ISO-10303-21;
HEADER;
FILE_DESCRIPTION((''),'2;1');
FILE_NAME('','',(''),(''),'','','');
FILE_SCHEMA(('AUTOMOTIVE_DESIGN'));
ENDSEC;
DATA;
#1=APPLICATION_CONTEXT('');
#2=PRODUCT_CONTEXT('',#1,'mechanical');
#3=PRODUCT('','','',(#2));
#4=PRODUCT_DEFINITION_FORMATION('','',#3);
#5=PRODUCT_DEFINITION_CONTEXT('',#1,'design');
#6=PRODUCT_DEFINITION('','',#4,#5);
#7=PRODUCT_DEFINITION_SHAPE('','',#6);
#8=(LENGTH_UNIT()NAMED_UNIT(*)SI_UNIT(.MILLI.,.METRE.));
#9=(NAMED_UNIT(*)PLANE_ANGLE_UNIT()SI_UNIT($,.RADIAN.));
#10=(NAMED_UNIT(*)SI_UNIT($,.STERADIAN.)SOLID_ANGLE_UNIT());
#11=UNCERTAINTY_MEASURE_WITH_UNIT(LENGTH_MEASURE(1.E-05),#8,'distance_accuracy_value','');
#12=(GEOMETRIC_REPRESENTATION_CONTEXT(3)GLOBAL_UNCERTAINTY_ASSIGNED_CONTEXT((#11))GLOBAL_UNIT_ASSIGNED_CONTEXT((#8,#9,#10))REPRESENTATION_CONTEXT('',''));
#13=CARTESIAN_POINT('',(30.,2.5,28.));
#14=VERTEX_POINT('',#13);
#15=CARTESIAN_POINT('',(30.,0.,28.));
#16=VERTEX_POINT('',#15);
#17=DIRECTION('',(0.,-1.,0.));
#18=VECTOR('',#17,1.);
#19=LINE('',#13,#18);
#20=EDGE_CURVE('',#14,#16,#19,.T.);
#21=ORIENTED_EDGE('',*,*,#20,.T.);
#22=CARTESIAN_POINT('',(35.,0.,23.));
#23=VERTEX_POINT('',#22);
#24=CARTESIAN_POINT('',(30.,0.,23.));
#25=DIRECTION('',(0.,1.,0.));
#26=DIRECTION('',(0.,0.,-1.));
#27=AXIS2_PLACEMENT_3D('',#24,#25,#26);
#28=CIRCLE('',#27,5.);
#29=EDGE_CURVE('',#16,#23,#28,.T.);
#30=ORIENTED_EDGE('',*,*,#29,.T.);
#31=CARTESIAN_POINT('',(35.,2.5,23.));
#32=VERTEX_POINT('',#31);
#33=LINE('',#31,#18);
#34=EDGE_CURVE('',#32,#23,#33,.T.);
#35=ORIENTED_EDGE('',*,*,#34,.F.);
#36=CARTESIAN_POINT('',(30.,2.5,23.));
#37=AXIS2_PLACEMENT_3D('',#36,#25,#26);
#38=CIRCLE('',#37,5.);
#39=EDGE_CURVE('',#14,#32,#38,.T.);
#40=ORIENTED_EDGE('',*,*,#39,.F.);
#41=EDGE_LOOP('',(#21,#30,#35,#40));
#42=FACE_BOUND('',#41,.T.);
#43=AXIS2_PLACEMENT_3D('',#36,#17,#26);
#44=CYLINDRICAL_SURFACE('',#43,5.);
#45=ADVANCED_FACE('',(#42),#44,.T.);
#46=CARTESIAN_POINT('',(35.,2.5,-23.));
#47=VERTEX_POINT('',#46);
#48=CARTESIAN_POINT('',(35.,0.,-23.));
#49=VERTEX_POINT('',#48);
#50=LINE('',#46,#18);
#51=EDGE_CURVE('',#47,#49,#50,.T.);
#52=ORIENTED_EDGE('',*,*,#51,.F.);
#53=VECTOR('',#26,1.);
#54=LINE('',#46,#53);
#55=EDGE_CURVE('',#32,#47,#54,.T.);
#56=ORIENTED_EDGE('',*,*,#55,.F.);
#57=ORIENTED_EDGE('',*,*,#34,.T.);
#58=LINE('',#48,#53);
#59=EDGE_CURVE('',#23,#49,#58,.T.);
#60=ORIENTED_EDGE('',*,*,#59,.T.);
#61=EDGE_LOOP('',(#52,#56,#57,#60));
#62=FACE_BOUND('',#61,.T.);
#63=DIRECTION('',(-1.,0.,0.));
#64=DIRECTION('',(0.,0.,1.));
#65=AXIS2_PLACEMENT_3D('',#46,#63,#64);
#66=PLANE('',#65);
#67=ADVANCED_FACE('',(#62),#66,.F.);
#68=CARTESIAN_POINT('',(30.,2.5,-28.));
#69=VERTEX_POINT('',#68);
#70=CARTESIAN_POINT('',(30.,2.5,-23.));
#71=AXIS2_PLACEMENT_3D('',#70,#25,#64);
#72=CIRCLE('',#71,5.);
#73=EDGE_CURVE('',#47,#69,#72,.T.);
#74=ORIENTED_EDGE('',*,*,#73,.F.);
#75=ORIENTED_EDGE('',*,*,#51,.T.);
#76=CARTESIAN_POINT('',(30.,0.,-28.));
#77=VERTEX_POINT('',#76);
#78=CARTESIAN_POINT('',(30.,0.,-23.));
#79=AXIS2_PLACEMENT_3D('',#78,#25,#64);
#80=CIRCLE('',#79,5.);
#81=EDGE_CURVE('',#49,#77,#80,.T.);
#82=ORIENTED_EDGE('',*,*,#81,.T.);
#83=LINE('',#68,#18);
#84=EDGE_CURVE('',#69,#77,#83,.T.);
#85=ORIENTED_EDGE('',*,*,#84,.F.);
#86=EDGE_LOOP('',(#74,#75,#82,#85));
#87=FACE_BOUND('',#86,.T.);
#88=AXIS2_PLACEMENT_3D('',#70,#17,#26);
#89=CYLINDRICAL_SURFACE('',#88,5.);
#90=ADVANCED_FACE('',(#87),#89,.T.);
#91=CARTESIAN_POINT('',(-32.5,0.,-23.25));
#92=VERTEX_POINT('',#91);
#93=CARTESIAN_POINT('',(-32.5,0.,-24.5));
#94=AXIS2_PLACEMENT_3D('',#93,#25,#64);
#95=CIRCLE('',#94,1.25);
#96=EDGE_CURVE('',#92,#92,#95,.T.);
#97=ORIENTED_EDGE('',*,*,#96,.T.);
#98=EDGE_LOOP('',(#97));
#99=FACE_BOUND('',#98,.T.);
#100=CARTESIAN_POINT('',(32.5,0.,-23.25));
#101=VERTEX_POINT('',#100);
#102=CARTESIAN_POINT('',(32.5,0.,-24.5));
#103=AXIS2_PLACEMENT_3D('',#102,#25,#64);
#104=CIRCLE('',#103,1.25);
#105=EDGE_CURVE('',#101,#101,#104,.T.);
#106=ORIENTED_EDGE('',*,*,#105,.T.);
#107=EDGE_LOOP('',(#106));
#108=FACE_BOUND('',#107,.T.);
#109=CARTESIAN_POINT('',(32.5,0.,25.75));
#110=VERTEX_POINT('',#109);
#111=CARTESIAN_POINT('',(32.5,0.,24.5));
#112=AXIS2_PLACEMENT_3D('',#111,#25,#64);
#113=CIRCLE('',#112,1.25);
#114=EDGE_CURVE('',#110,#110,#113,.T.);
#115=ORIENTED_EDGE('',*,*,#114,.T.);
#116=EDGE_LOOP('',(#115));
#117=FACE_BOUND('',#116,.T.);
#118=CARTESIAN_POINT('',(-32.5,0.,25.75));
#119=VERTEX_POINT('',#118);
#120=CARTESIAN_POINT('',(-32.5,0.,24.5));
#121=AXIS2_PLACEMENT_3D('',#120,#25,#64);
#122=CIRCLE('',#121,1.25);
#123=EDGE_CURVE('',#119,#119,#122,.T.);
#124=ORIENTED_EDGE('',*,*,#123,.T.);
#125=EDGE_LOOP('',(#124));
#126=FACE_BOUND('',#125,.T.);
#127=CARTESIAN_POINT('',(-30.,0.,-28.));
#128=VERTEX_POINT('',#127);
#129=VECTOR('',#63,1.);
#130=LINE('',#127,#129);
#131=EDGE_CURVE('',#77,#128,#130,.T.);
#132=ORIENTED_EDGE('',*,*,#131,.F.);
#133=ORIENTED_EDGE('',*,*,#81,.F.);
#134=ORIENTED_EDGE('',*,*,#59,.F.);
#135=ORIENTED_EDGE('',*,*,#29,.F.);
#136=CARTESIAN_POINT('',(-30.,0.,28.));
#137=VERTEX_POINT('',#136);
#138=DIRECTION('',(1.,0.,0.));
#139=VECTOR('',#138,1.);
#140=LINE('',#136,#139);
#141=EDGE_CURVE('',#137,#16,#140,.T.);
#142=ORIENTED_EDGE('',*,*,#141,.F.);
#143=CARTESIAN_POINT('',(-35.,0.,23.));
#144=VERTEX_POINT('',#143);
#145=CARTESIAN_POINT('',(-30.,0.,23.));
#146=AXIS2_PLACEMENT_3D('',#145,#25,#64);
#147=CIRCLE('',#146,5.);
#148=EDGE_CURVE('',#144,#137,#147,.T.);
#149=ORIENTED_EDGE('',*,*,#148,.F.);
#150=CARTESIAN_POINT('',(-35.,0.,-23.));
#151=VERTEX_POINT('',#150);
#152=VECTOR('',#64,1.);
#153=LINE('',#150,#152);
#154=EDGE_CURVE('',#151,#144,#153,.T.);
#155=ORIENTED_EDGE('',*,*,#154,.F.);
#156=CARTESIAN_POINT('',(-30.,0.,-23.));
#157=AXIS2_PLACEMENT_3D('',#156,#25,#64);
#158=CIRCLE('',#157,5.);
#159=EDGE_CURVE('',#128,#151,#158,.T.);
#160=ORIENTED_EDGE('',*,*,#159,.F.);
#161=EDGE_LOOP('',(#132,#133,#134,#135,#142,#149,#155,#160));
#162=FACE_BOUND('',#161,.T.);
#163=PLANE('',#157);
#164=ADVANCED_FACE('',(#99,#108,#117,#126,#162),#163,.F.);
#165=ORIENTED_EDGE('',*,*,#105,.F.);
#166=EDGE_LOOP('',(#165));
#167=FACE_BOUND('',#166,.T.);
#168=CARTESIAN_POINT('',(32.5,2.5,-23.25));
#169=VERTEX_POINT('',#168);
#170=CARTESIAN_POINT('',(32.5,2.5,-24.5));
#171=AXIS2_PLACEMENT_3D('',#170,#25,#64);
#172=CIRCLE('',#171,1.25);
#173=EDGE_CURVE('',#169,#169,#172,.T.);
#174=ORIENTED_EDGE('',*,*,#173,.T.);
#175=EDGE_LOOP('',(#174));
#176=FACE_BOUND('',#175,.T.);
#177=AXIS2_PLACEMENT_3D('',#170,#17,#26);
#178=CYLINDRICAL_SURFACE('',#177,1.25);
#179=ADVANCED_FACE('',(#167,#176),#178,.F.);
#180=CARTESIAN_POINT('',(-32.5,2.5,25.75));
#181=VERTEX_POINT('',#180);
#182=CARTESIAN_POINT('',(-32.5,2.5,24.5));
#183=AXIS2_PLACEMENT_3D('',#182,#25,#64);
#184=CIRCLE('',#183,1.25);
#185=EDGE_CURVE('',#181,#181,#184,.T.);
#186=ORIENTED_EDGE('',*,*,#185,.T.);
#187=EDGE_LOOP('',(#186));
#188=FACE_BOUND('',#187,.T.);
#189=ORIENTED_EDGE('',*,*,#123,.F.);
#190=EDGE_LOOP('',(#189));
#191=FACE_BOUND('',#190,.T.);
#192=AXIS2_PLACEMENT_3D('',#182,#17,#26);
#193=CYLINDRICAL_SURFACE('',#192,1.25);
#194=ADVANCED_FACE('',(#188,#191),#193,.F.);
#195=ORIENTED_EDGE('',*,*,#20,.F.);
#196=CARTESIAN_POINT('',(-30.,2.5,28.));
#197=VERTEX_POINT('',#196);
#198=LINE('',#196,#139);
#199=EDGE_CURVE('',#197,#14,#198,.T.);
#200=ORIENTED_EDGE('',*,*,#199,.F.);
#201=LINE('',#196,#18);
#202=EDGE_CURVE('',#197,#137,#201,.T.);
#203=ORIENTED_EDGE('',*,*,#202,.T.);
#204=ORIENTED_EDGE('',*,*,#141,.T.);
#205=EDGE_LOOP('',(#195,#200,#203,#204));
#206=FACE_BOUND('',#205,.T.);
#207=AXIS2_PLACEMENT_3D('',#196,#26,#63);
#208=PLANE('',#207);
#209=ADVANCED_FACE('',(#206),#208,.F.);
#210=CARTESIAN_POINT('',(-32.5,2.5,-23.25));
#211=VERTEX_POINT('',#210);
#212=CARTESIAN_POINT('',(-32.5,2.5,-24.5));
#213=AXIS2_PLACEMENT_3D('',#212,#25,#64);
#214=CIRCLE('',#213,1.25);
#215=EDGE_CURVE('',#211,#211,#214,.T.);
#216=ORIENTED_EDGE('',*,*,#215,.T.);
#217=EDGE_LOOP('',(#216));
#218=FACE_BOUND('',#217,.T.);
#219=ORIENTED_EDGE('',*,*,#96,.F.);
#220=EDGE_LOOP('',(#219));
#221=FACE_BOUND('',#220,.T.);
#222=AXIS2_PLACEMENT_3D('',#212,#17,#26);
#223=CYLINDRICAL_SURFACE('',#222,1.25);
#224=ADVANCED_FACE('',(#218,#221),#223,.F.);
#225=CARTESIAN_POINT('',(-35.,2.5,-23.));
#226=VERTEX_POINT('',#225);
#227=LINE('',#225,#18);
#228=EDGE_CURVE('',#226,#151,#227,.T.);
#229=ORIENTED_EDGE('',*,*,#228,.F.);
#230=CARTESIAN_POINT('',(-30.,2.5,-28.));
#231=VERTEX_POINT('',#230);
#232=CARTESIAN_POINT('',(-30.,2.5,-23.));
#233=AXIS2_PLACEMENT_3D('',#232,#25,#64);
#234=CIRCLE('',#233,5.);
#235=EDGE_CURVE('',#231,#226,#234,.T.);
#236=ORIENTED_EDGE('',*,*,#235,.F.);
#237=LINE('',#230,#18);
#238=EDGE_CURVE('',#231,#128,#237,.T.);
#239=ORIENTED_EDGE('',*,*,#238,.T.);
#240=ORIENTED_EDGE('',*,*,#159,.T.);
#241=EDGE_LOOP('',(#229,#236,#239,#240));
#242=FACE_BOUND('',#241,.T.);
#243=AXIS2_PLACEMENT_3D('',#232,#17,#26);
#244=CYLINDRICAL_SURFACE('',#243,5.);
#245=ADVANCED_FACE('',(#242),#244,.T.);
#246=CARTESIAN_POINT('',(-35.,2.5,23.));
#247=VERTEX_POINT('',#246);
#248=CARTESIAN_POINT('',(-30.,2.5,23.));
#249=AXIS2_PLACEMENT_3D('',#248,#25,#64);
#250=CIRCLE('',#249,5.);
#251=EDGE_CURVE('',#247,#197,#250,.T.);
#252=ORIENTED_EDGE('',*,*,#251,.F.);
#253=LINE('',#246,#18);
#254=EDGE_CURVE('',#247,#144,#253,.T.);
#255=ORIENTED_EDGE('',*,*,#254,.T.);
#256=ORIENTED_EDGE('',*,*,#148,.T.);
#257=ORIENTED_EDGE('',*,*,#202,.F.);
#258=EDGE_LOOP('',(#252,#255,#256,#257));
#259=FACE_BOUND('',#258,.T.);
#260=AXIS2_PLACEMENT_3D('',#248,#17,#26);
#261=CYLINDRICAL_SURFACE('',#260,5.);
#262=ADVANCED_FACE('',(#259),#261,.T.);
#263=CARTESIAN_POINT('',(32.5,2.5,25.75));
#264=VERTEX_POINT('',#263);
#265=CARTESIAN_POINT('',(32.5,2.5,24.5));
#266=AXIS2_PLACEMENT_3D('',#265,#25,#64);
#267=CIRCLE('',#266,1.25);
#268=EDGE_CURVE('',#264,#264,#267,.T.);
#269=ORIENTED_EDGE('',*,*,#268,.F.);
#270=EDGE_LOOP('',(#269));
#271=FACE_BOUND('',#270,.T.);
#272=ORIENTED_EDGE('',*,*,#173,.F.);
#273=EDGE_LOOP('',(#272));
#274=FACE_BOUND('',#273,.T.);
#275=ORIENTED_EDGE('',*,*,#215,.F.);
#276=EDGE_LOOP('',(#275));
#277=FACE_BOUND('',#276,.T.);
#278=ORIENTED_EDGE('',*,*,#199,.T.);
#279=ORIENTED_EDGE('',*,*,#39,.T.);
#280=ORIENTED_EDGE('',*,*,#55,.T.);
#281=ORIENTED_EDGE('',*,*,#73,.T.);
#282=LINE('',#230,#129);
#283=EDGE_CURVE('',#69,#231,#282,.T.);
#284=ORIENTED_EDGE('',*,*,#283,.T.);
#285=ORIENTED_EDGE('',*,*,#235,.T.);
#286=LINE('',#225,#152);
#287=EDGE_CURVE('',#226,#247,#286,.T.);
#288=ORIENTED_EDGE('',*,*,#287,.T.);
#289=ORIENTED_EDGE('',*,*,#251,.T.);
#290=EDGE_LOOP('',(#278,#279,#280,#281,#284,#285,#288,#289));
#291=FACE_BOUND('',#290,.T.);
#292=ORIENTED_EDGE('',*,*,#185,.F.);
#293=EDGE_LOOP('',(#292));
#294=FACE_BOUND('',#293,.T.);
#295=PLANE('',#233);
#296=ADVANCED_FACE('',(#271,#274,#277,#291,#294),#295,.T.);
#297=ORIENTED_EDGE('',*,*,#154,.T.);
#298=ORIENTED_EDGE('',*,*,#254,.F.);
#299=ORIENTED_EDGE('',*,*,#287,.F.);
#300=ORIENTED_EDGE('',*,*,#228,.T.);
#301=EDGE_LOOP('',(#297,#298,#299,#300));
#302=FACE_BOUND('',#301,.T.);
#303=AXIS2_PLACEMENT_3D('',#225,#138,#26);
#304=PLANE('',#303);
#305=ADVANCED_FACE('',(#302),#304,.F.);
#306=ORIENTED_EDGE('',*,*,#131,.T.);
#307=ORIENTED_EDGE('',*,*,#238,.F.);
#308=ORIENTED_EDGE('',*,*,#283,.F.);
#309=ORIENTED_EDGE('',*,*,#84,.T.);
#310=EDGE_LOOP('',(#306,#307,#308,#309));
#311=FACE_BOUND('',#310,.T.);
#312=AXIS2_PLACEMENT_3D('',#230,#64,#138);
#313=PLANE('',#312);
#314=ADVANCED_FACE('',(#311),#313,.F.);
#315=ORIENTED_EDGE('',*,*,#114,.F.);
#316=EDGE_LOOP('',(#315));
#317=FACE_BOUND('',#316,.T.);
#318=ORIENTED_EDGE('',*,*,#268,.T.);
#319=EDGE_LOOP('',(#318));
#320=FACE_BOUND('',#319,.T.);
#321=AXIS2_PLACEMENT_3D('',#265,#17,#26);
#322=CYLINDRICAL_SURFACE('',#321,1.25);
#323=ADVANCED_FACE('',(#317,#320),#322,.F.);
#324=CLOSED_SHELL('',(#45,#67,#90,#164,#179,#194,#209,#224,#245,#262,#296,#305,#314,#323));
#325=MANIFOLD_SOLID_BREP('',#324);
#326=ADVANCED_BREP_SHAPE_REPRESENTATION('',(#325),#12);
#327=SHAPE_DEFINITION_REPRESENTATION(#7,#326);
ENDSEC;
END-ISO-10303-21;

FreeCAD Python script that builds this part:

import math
import FreeCAD as App
import Part
import Sketcher
from FreeCAD import Vector
Q = App.Units.Quantity

doc = App.newDocument("Part")
body = doc.addObject("PartDesign::Body", "Body")

# Sketch on XZ plane
sketch1 = body.newObject("Sketcher::SketchObject", "Sketch")
sketch1.AttachmentSupport = (doc.getObject("XZ_Plane"), [""])
sketch1.MapMode = "FlatFace"
sketch1.addGeometry(Part.LineSegment(Vector(30, -28, 0), Vector(-30, -28, 0)), False)
sketch1.addGeometry(Part.ArcOfCircle(Part.Circle(Vector(-30, -23, 0), Vector(0, 0, 1), 5), math.radians(180), math.radians(270)), False)
sketch1.addGeometry(Part.LineSegment(Vector(-35, -23, 0), Vector(-35, 23, 0)), False)
sketch1.addGeometry(Part.ArcOfCircle(Part.Circle(Vector(-30, 23, 0), Vector(0, 0, 1), 5), math.radians(90), math.radians(180)), False)
sketch1.addGeometry(Part.LineSegment(Vector(-30, 28, 0), Vector(30, 28, 0)), False)
sketch1.addGeometry(Part.ArcOfCircle(Part.Circle(Vector(30, 23, 0), Vector(0, 0, 1), 5), math.radians(0), math.radians(90)), False)
sketch1.addGeometry(Part.LineSegment(Vector(35, 23, 0), Vector(35, -23, 0)), False)
sketch1.addGeometry(Part.ArcOfCircle(Part.Circle(Vector(30, -23, 0), Vector(0, 0, 1), 5), math.radians(-90), math.radians(0)), False)
sketch1.addGeometry(Part.Circle(Vector(32.5, 24.5, 0), Vector(0, 0, 1), 1.25), False)
sketch1.addGeometry(Part.Circle(Vector(-32.5, 24.5, 0), Vector(0, 0, 1), 1.25), False)
sketch1.addGeometry(Part.Circle(Vector(32.5, -24.5, 0), Vector(0, 0, 1), 1.25), False)
sketch1.addGeometry(Part.Circle(Vector(-32.5, -24.5, 0), Vector(0, 0, 1), 1.25), False)
sketch1.addConstraint(Sketcher.Constraint("Tangent", 0, 2, 1, 2))
sketch1.addConstraint(Sketcher.Constraint("Tangent", 1, 1, 2, 1))
sketch1.addConstraint(Sketcher.Constraint("Tangent", 2, 2, 3, 2))
sketch1.addConstraint(Sketcher.Constraint("Tangent", 3, 1, 4, 1))
sketch1.addConstraint(Sketcher.Constraint("Tangent", 4, 2, 5, 2))
sketch1.addConstraint(Sketcher.Constraint("Tangent", 5, 1, 6, 1))
sketch1.addConstraint(Sketcher.Constraint("Tangent", 6, 2, 7, 2))
sketch1.addConstraint(Sketcher.Constraint("Tangent", 7, 1, 0, 1))
sketch1.addConstraint(Sketcher.Constraint("Horizontal", 0))
sketch1.addConstraint(Sketcher.Constraint("Vertical", 2))
sketch1.addConstraint(Sketcher.Constraint("Horizontal", 4))
sketch1.addConstraint(Sketcher.Constraint("Vertical", 6))
sketch1.addConstraint(Sketcher.Constraint("Equal", 1, 3))
sketch1.addConstraint(Sketcher.Constraint("Equal", 3, 5))
sketch1.addConstraint(Sketcher.Constraint("Equal", 5, 7))
sketch1.addConstraint(Sketcher.Constraint("Equal", 8, 9))
sketch1.addConstraint(Sketcher.Constraint("Equal", 9, 10))
sketch1.addConstraint(Sketcher.Constraint("Equal", 10, 11))
sketch1.addConstraint(Sketcher.Constraint("Symmetric", 1, 3, 5, 3, -1, 1))
sketch1.addConstraint(Sketcher.Constraint("Symmetric", 9, 3, 10, 3, -1, 1))
sketch1.addConstraint(Sketcher.Constraint("Symmetric", 8, 3, 11, 3, -1, 1))
sketch1.addConstraint(Sketcher.Constraint("Symmetric", 8, 3, 9, 3, -2))
sketch1.addConstraint(Sketcher.Constraint("Radius", 1, Q("5 mm")))
sketch1.addConstraint(Sketcher.Constraint("Diameter", 8, Q("2.5 mm")))
sketch1.addConstraint(Sketcher.Constraint("DistanceX", 0, 2, 0, 1, Q("60 mm")))
sketch1.addConstraint(Sketcher.Constraint("DistanceY", 2, 1, 2, 2, Q("46 mm")))
sketch1.addConstraint(Sketcher.Constraint("DistanceX", 9, 3, 8, 3, Q("65 mm")))
sketch1.addConstraint(Sketcher.Constraint("DistanceY", 10, 3, 8, 3, Q("49 mm")))
pad1 = body.newObject("PartDesign::Pad", "Pad")
pad1.Profile = sketch1
pad1.Length = 2.5
pad1.Reversed = True

doc.recompute()
